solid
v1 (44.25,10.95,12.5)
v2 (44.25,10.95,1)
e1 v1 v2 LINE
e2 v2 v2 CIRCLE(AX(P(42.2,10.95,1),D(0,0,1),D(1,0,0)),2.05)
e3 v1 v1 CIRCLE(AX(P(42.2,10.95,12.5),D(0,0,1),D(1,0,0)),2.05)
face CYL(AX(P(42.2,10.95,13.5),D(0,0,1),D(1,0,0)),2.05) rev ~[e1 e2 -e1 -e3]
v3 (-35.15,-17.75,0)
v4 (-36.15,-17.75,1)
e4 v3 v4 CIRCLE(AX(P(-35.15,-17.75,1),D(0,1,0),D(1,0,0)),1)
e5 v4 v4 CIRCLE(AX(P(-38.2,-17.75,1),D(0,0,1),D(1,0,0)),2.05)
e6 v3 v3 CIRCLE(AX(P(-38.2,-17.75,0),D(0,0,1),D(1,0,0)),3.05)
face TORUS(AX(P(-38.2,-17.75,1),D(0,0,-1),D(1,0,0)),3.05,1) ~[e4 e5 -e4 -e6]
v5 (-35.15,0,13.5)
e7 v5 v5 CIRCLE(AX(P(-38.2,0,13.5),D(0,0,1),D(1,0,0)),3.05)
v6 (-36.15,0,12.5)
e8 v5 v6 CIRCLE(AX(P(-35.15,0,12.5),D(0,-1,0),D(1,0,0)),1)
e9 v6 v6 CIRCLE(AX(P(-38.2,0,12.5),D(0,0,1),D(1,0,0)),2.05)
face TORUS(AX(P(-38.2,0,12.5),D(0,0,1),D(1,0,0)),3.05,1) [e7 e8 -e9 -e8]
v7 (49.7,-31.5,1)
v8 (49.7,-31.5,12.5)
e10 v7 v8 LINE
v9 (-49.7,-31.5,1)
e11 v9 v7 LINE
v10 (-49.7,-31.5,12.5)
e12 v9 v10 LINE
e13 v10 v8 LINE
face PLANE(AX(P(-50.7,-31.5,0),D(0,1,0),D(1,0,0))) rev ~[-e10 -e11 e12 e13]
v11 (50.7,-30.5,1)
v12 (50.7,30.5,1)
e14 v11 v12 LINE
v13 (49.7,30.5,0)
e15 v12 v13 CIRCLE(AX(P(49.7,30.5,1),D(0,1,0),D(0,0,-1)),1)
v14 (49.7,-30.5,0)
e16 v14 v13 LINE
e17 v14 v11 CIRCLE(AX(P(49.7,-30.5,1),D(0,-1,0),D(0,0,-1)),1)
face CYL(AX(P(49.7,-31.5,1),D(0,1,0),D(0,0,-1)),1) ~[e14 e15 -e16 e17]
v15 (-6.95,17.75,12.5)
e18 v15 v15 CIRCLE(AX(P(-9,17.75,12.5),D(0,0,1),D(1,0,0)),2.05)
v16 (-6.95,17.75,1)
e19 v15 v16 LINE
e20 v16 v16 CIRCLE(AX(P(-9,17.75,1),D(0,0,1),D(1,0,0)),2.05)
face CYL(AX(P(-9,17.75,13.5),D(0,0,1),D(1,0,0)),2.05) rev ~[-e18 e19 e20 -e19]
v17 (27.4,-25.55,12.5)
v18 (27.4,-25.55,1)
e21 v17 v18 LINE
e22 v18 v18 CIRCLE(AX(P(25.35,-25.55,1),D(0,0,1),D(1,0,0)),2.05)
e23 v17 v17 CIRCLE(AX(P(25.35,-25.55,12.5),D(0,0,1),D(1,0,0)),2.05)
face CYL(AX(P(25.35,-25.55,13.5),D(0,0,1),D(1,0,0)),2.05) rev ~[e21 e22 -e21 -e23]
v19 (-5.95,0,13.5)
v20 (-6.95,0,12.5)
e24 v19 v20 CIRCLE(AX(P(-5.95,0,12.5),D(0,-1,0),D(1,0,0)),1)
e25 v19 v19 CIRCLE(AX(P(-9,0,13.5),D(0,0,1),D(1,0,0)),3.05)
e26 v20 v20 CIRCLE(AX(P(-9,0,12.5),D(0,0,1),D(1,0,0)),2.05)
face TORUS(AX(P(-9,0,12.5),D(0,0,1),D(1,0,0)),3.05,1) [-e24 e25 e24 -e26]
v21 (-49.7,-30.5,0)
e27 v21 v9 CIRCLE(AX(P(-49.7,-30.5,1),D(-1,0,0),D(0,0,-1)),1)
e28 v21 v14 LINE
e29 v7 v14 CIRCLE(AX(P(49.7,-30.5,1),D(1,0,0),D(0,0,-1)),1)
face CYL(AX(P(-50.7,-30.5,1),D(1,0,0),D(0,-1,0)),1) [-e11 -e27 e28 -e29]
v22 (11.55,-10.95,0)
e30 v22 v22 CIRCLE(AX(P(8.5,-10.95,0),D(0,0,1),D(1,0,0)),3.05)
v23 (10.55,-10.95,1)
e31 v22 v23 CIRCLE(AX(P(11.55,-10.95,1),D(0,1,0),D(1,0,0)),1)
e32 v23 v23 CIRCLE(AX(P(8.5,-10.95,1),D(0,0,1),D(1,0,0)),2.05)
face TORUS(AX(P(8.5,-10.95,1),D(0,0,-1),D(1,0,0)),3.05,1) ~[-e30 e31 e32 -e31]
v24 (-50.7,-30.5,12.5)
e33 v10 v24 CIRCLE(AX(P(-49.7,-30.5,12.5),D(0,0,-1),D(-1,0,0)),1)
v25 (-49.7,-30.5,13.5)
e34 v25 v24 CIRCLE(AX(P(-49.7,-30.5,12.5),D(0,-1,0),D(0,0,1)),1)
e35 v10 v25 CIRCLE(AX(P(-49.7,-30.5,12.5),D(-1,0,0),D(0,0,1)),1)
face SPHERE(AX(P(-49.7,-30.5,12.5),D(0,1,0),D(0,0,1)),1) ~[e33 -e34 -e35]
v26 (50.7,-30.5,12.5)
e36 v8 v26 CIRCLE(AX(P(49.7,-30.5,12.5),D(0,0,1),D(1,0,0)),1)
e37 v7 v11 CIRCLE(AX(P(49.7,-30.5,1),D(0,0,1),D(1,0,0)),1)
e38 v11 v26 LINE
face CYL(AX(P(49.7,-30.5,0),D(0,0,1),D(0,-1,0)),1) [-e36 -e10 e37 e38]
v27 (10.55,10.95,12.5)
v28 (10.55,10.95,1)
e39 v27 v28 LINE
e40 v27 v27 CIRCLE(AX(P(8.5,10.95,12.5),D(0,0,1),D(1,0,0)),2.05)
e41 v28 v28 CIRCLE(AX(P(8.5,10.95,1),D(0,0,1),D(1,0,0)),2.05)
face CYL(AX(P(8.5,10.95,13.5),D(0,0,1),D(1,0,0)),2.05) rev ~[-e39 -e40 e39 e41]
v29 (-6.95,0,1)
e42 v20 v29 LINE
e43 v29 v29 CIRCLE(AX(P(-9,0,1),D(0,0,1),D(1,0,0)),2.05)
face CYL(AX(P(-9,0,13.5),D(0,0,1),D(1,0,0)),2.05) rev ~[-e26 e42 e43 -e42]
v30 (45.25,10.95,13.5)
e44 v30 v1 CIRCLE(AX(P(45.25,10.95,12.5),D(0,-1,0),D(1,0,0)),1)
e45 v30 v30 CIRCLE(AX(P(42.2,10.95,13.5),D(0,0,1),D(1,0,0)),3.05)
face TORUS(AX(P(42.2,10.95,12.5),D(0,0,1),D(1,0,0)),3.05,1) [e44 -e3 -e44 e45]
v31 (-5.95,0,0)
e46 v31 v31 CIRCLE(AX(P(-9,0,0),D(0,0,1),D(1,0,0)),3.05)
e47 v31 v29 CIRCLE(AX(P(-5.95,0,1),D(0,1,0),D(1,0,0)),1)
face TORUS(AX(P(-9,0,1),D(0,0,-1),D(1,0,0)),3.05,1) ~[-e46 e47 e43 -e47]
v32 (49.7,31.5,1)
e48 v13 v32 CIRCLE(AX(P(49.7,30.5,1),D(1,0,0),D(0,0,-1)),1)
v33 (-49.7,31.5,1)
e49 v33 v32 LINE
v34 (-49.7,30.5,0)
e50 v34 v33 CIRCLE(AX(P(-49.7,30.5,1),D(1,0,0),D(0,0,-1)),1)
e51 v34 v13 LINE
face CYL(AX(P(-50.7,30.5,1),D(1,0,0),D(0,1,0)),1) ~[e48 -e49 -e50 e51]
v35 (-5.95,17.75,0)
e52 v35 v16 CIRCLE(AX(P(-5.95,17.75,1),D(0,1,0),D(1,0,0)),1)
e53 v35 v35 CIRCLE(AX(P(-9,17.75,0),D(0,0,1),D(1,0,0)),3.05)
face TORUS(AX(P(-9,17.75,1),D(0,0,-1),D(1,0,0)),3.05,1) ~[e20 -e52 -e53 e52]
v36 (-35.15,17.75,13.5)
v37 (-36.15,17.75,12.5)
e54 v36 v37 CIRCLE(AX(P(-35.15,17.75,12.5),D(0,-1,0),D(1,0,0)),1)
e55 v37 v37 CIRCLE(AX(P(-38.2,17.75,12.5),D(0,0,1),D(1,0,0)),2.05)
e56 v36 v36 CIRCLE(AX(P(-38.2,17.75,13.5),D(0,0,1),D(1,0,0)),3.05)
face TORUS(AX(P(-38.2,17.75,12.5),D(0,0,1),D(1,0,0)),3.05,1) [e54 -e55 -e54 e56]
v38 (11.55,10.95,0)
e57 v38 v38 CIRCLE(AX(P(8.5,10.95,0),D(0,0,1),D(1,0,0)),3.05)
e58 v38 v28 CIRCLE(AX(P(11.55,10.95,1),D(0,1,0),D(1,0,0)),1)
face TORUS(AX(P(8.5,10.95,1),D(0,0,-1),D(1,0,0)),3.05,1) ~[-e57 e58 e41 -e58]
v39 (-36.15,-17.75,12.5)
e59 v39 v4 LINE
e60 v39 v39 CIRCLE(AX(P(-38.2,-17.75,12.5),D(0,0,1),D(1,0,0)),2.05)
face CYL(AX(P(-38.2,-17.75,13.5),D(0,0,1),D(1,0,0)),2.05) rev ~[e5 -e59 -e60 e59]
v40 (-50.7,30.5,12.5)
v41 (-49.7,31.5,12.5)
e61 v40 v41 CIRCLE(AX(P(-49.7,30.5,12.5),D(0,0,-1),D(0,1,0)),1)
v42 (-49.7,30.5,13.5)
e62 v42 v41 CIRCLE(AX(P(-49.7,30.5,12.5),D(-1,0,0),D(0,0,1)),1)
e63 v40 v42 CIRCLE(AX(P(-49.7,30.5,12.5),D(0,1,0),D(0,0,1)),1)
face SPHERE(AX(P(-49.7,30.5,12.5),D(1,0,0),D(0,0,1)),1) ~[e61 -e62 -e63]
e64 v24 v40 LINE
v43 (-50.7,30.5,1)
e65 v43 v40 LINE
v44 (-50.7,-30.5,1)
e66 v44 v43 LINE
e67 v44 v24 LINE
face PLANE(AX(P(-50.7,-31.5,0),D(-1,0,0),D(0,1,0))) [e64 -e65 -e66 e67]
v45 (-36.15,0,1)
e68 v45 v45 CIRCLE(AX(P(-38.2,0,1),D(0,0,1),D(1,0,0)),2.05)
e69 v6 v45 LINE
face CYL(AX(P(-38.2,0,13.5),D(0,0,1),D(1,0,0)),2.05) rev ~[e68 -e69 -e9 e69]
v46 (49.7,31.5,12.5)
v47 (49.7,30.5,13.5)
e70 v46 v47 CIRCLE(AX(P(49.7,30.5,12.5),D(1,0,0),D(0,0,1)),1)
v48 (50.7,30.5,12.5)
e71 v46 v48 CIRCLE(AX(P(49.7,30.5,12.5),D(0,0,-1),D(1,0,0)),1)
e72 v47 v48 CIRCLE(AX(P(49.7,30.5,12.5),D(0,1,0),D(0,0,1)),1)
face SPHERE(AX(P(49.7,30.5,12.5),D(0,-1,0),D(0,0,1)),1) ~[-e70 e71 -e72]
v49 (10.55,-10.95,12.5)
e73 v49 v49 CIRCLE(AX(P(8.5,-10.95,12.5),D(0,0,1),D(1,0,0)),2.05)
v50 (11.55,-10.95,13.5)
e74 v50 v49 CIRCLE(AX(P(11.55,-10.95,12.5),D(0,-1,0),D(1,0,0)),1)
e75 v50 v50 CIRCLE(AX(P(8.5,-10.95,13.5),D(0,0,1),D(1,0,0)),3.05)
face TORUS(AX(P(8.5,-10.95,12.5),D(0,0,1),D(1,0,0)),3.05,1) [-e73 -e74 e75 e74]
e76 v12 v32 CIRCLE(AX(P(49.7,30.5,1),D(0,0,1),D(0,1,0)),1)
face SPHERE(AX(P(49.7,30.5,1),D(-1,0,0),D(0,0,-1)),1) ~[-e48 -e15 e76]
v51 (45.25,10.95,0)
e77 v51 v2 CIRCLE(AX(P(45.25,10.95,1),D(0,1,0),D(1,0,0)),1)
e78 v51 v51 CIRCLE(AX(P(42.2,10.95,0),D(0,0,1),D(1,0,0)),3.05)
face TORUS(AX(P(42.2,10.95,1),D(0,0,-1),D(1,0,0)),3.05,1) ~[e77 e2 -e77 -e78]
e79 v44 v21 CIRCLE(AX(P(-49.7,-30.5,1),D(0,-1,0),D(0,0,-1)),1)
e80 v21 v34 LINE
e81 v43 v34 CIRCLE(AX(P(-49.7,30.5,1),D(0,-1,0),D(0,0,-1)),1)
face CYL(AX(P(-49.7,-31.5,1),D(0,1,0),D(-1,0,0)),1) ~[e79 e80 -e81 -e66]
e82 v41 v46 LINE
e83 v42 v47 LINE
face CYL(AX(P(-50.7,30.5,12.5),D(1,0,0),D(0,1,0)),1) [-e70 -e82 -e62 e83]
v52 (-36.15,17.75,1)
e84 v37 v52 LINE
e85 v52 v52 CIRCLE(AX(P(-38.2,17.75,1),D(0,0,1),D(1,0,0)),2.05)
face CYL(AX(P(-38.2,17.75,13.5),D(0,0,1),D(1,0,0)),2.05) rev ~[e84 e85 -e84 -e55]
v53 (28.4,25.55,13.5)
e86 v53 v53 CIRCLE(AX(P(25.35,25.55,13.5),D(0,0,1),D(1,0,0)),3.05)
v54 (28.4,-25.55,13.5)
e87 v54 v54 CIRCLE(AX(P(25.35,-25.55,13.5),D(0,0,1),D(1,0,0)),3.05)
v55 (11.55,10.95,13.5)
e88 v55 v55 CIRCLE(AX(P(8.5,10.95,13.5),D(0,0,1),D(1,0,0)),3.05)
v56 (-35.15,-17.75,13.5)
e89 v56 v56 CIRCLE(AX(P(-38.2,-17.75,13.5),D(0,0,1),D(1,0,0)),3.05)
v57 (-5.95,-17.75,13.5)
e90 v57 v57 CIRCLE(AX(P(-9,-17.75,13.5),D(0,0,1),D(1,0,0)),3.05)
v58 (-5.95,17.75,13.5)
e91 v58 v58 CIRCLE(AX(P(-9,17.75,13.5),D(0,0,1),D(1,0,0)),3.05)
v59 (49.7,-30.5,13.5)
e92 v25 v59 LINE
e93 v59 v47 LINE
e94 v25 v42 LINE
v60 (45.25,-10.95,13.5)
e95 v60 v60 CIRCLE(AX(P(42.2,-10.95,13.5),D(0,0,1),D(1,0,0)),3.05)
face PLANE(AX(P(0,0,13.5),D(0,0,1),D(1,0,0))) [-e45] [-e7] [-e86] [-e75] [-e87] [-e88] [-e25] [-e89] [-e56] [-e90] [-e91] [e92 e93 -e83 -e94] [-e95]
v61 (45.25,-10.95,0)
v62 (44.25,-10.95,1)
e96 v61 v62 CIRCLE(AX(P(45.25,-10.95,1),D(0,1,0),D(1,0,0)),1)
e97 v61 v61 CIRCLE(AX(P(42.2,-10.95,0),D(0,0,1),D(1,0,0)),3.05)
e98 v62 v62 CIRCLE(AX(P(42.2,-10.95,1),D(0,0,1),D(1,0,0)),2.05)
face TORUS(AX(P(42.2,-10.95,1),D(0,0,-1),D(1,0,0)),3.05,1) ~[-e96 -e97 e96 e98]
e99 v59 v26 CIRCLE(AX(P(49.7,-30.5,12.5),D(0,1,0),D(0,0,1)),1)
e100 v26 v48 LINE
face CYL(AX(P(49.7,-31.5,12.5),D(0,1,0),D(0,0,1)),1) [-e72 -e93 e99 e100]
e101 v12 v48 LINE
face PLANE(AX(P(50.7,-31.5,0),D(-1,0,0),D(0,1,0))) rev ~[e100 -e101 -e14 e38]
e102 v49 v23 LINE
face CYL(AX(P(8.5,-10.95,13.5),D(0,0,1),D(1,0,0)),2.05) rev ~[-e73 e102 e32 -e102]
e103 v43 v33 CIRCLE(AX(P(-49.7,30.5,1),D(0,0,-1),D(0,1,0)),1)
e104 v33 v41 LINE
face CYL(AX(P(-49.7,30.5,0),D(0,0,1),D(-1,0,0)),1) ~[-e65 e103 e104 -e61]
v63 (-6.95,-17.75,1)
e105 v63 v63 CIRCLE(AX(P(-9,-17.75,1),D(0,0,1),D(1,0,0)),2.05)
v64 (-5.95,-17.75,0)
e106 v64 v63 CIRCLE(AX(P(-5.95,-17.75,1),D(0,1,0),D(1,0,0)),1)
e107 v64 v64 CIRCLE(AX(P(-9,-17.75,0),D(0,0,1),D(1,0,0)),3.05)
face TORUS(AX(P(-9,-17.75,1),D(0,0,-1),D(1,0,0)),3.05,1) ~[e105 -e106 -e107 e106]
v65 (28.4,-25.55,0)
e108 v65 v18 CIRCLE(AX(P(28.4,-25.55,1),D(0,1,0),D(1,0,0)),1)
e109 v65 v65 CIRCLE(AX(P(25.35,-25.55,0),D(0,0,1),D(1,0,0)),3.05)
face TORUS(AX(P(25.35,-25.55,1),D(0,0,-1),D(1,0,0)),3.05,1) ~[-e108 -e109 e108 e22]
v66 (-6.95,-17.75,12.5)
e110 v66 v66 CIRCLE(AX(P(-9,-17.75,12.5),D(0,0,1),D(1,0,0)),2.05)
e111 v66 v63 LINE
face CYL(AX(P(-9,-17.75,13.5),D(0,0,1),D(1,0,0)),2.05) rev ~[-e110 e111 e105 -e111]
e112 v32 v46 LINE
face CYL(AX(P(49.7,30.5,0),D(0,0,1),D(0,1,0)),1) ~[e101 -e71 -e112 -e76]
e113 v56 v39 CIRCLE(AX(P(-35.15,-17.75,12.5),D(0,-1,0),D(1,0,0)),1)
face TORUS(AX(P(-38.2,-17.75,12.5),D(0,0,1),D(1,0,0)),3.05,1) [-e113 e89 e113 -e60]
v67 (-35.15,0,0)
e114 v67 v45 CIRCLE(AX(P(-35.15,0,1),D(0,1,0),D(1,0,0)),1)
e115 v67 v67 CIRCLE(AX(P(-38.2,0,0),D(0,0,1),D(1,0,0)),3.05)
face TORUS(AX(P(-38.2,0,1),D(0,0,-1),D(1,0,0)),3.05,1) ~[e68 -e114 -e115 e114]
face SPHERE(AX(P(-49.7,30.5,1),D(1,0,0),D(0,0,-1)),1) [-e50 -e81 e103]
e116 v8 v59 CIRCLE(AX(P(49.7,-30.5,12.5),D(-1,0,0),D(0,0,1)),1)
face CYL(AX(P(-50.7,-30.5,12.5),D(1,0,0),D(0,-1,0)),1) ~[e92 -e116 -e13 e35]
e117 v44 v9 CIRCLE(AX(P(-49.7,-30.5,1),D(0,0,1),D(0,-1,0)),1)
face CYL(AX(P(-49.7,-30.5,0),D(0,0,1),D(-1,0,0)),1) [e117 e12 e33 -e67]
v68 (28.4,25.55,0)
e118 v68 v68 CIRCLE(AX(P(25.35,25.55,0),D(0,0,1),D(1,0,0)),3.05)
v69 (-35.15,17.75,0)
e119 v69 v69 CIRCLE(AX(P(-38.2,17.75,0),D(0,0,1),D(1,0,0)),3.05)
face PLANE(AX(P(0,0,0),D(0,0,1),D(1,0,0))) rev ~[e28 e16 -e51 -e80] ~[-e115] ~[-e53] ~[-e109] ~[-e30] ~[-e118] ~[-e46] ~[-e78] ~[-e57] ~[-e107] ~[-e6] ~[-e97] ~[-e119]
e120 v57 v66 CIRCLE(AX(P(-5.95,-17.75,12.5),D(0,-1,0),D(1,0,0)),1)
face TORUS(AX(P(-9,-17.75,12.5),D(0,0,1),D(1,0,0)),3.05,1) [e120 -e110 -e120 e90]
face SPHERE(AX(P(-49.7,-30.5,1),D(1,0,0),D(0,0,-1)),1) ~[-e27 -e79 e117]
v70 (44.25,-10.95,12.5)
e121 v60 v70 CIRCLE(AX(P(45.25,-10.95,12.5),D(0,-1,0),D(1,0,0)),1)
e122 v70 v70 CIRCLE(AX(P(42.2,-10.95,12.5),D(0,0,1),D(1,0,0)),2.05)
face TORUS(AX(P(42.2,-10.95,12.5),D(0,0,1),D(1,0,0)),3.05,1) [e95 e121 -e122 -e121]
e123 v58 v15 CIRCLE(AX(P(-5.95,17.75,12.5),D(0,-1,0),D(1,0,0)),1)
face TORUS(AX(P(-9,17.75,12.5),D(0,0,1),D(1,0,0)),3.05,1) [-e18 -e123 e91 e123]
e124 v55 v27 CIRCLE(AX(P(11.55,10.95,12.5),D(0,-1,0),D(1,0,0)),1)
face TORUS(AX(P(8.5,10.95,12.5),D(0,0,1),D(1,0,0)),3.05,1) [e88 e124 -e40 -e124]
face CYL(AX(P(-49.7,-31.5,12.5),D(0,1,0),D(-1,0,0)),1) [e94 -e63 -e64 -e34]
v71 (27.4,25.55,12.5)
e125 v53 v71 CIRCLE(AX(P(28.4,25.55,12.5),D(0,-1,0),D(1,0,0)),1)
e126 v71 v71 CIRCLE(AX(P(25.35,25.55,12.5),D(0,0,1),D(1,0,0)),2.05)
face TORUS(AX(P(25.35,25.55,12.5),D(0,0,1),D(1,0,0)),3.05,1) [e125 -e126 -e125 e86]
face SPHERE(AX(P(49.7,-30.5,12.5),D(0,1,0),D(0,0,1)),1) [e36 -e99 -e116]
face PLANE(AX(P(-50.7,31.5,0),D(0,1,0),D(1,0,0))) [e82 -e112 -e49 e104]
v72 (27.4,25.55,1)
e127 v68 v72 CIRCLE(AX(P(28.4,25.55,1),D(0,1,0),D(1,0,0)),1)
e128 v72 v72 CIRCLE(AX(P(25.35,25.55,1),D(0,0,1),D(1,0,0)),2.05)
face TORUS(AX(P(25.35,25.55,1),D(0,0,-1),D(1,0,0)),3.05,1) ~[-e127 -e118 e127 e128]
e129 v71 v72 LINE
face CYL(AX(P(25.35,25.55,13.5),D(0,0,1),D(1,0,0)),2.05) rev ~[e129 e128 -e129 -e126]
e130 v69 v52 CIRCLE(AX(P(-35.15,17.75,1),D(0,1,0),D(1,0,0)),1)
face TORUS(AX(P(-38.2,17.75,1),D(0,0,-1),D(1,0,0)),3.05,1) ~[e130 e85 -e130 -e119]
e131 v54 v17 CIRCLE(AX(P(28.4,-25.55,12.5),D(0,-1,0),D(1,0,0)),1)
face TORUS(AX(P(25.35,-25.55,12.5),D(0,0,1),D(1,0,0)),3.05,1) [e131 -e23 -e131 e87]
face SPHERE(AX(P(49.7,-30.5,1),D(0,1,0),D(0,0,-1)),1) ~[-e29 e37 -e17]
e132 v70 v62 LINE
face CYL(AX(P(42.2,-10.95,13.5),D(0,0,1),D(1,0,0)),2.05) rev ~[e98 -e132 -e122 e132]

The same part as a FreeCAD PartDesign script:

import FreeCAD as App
import Part
import Sketcher
from FreeCAD import Vector
Q = App.Units.Quantity


def add_polygon(sketch, points):
    """Adds a closed chain of lines whose ends are joined by coincident constraints."""
    first, n = sketch.GeometryCount, len(points)
    for a, b in zip(points, points[1:] + points[:1]):
        sketch.addGeometry(Part.LineSegment(App.Vector(*a, 0), App.Vector(*b, 0)), False)
    for i in range(n):
        sketch.addConstraint(Sketcher.Constraint("Coincident", first + i, 2, first + (i + 1) % n, 1))

doc = App.newDocument("Part")
params = doc.addObject("Spreadsheet::Sheet", "Params")
for row, (alias, value) in enumerate([
    ("sketch1_height", "63 mm"),
    ("sketch1_width", "101.4 mm"),
    ("pad1_length", "13.5 mm"),
    ("sketch2_diameter", "4.1 mm"),
    ("fillet_radius", "1 mm"),
], start=1):
    params.set(f"A{row}", alias)
    params.set(f"B{row}", "=" + value)
    params.setAlias(f"B{row}", alias)

body = doc.addObject("PartDesign::Body", "Body")

sketch1 = body.newObject("Sketcher::SketchObject", "Sketch")
sketch1.AttachmentSupport = (doc.getObject("XY_Plane"), [""])
sketch1.MapMode = "FlatFace"
add_polygon(sketch1, [(-51, 32), (-51, -32), (51, -32), (51, 32)])
sketch1.addConstraint(Sketcher.Constraint("Vertical", 0))
sketch1.addConstraint(Sketcher.Constraint("Horizontal", 1))
sketch1.addConstraint(Sketcher.Constraint("Vertical", 2))
sketch1.addConstraint(Sketcher.Constraint("Horizontal", 3))
sketch1.addConstraint(Sketcher.Constraint("Symmetric", 0, 2, 2, 2, -1, 1))
sketch1.addConstraint(Sketcher.Constraint("DistanceY", 0, 2, 0, 1, Q("63 mm")))
sketch1.addConstraint(Sketcher.Constraint("DistanceX", 1, 1, 1, 2, Q("101.4 mm")))
sketch1.setExpression("Constraints[9]", "Params.sketch1_height")
sketch1.setExpression("Constraints[10]", "Params.sketch1_width")
pad1 = body.newObject("PartDesign::Pad", "Pad")
pad1.Profile = sketch1
pad1.setExpression("Length", "Params.pad1_length")

sketch2 = body.newObject("Sketcher::SketchObject", "Sketch001")
sketch2.AttachmentSupport = (doc.getObject("XY_Plane"), [""])
sketch2.MapMode = "FlatFace"
sketch2.AttachmentOffset = App.Placement(Vector(0, 0, 13.5), App.Rotation())
sketch2.addGeometry(Part.Circle(Vector(-38.2, 17.8, 0), Vector(0, 0, 1), 2), False)
sketch2.addGeometry(Part.Circle(Vector(-38.2, 0, 0), Vector(0, 0, 1), 2), False)
sketch2.addGeometry(Part.Circle(Vector(-38.2, -17.8, 0), Vector(0, 0, 1), 2), False)
sketch2.addGeometry(Part.Circle(Vector(-9, 17.8, 0), Vector(0, 0, 1), 2), False)
sketch2.addGeometry(Part.Circle(Vector(-9, 0, 0), Vector(0, 0, 1), 2), False)
sketch2.addGeometry(Part.Circle(Vector(-9, -17.8, 0), Vector(0, 0, 1), 2), False)
sketch2.addGeometry(Part.Circle(Vector(25.4, 25.6, 0), Vector(0, 0, 1), 2), False)
sketch2.addGeometry(Part.Circle(Vector(8.5, 10.9, 0), Vector(0, 0, 1), 2), False)
sketch2.addGeometry(Part.Circle(Vector(8.5, -10.9, 0), Vector(0, 0, 1), 2), False)
sketch2.addGeometry(Part.Circle(Vector(42.2, 10.9, 0), Vector(0, 0, 1), 2), False)
sketch2.addGeometry(Part.Circle(Vector(42.2, -10.9, 0), Vector(0, 0, 1), 2), False)
sketch2.addGeometry(Part.Circle(Vector(25.4, -25.6, 0), Vector(0, 0, 1), 2), False)
sketch2.addConstraint(Sketcher.Constraint("Equal", 0, 1))
sketch2.addConstraint(Sketcher.Constraint("Equal", 1, 2))
sketch2.addConstraint(Sketcher.Constraint("Equal", 2, 3))
sketch2.addConstraint(Sketcher.Constraint("Equal", 3, 4))
sketch2.addConstraint(Sketcher.Constraint("Equal", 4, 5))
sketch2.addConstraint(Sketcher.Constraint("Equal", 5, 6))
sketch2.addConstraint(Sketcher.Constraint("Equal", 6, 7))
sketch2.addConstraint(Sketcher.Constraint("Equal", 7, 8))
sketch2.addConstraint(Sketcher.Constraint("Equal", 8, 9))
sketch2.addConstraint(Sketcher.Constraint("Equal", 9, 10))
sketch2.addConstraint(Sketcher.Constraint("Equal", 10, 11))
sketch2.addConstraint(Sketcher.Constraint("Symmetric", 0, 3, 2, 3, -1))
sketch2.addConstraint(Sketcher.Constraint("Symmetric", 3, 3, 5, 3, -1))
sketch2.addConstraint(Sketcher.Constraint("Symmetric", 7, 3, 8, 3, -1))
sketch2.addConstraint(Sketcher.Constraint("Symmetric", 9, 3, 10, 3, -1))
sketch2.addConstraint(Sketcher.Constraint("Symmetric", 6, 3, 11, 3, -1))
sketch2.addConstraint(Sketcher.Constraint("PointOnObject", 1, 3, -1))
sketch2.addConstraint(Sketcher.Constraint("PointOnObject", 4, 3, -1))
sketch2.addConstraint(Sketcher.Constraint("Horizontal", 0, 3, 3, 3))
sketch2.addConstraint(Sketcher.Constraint("Horizontal", 7, 3, 9, 3))
sketch2.addConstraint(Sketcher.Constraint("Vertical", 0, 3, 1, 3))
sketch2.addConstraint(Sketcher.Constraint("Vertical", 3, 3, 4, 3))
sketch2.addConstraint(Sketcher.Constraint("Diameter", 0, Q("4.1 mm")))
sketch2.addConstraint(Sketcher.Constraint("DistanceX", 3, 3, -1, 1, Q("9 mm")))
sketch2.addConstraint(Sketcher.Constraint("DistanceX", 0, 3, -1, 1, Q("38.2 mm")))
sketch2.addConstraint(Sketcher.Constraint("DistanceX", -1, 1, 7, 3, Q("8.5 mm")))
sketch2.addConstraint(Sketcher.Constraint("DistanceX", -1, 1, 9, 3, Q("42.2 mm")))
sketch2.addConstraint(Sketcher.Constraint("DistanceY", 2, 3, 0, 3, Q("35.5 mm")))
sketch2.addConstraint(Sketcher.Constraint("DistanceY", 3, 3, 6, 3, Q("7.8 mm")))
sketch2.addConstraint(Sketcher.Constraint("DistanceY", 7, 3, 3, 3, Q("6.8 mm")))
sketch2.addConstraint(Sketcher.Constraint("DistanceX", -1, 1, 6, 3, Q("25.35 mm")))
sketch2.setExpression("Constraints[22]", "Params.sketch2_diameter")
pocket1 = body.newObject("PartDesign::Pocket", "Pocket")
pocket1.Profile = sketch2
pocket1.Type = "ThroughAll"
doc.recompute()

fillet = body.newObject("PartDesign::Fillet", "Fillet")
fillet.Base = (pocket1, ["Edge1"])
fillet.UseAllEdges = True
fillet.setExpression("Radius", "Params.fillet_radius")

doc.recompute()
